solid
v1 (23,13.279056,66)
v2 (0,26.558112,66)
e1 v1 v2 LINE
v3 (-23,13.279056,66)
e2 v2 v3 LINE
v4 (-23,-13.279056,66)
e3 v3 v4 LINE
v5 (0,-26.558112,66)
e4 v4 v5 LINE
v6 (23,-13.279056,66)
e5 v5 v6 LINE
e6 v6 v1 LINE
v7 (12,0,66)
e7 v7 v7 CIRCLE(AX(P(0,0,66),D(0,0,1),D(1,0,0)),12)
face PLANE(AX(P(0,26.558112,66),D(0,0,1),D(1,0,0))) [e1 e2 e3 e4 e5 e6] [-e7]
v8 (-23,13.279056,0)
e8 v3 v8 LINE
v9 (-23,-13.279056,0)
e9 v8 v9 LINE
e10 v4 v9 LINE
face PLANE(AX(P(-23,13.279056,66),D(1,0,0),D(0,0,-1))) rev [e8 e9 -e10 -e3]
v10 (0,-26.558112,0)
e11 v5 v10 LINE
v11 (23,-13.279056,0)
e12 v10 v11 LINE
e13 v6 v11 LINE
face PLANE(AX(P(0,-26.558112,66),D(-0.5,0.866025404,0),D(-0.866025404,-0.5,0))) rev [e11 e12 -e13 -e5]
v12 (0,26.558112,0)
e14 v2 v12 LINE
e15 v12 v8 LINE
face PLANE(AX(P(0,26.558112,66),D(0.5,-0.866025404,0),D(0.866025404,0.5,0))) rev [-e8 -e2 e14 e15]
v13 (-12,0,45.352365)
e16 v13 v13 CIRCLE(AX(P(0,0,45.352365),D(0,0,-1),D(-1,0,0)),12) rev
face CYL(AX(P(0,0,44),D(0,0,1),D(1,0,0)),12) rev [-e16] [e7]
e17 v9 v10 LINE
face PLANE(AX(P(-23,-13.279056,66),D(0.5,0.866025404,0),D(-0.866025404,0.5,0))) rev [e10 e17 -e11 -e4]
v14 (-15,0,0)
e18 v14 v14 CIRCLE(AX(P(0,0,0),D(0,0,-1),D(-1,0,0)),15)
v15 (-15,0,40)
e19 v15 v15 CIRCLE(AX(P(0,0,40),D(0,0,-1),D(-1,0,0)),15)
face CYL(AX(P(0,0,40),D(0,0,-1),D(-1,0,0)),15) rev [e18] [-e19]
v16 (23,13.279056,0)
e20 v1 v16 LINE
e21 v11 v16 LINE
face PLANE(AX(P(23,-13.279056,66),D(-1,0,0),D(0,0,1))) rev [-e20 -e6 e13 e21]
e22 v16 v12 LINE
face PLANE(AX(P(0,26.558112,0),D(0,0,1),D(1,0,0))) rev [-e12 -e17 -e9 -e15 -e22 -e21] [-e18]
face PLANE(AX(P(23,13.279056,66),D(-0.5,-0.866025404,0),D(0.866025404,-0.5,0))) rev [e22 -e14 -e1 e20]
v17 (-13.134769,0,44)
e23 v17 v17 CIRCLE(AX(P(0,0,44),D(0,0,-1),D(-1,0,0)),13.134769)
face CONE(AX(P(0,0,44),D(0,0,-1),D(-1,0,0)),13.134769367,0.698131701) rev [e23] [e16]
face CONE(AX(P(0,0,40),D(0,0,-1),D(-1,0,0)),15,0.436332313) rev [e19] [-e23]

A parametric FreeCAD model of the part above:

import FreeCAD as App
import Part
import Sketcher
Q = App.Units.Quantity


def faces_at(feature, points):
    """Names of the faces that lie closest to the given points."""
    faces = feature.Shape.Faces
    near = lambda p: min(range(len(faces)), key=lambda i: faces[i].distToShape(Part.Vertex(*p))[0])
    return sorted({f"Face{near(p) + 1}" for p in points})

doc = App.newDocument("Part")
body = doc.addObject("PartDesign::Body", "Body")

# Sketch on XY plane
sketch1 = doc.addObject("Sketcher::SketchObject", "Sketch")
body.addObject(sketch1)
sketch1.AttachmentSupport = (doc.XY_Plane, [""])
sketch1.MapMode = "FlatFace"
sketch1.addGeometry(Part.LineSegment(App.Vector(0, 27, 0), App.Vector(-23, 13, 0)), False)
sketch1.addGeometry(Part.LineSegment(App.Vector(-23, 13, 0), App.Vector(-23, -13, 0)), False)
sketch1.addGeometry(Part.LineSegment(App.Vector(-23, -13, 0), App.Vector(0, -27, 0)), False)
sketch1.addGeometry(Part.LineSegment(App.Vector(0, -27, 0), App.Vector(23, -13, 0)), False)
sketch1.addGeometry(Part.LineSegment(App.Vector(23, -13, 0), App.Vector(23, 13, 0)), False)
sketch1.addGeometry(Part.LineSegment(App.Vector(23, 13, 0), App.Vector(0, 27, 0)), False)
sketch1.addConstraint(Sketcher.Constraint("Coincident", 0, 2, 1, 1))
sketch1.addConstraint(Sketcher.Constraint("Coincident", 1, 2, 2, 1))
sketch1.addConstraint(Sketcher.Constraint("Coincident", 2, 2, 3, 1))
sketch1.addConstraint(Sketcher.Constraint("Coincident", 3, 2, 4, 1))
sketch1.addConstraint(Sketcher.Constraint("Coincident", 4, 2, 5, 1))
sketch1.addConstraint(Sketcher.Constraint("Coincident", 5, 2, 0, 1))
sketch1.addConstraint(Sketcher.Constraint("Vertical", 1))
sketch1.addConstraint(Sketcher.Constraint("Vertical", 4))
sketch1.addConstraint(Sketcher.Constraint("Symmetric", 0, 2, 3, 2, -1, 1))
sketch1.addConstraint(Sketcher.Constraint("Symmetric", 2, 2, 5, 2, -1, 1))
sketch1.addConstraint(Sketcher.Constraint("PointOnObject", 2, 2, -2))
sketch1.addConstraint(Sketcher.Constraint("Parallel", 2, 5))
sketch1.addConstraint(Sketcher.Constraint("Horizontal", 1, 2, 3, 2))
sketch1.addConstraint(Sketcher.Constraint("Angle", 0, Q("-150 deg")))
sketch1.addConstraint(Sketcher.Constraint("DistanceX", 0, 2, -1, 1, 23.0))
sketch1.addConstraint(Sketcher.Constraint("DistanceY", 1, 2, 1, 1, 26.558112))
pad1 = doc.addObject("PartDesign::Pad", "Pad")
body.addObject(pad1)
pad1.Profile = sketch1
pad1.Length = 66

# Sketch on XY plane
sketch2 = doc.addObject("Sketcher::SketchObject", "Sketch001")
body.addObject(sketch2)
sketch2.AttachmentSupport = (doc.XY_Plane, [""])
sketch2.MapMode = "FlatFace"
sketch2.addGeometry(Part.Circle(App.Vector(0, 0, 0), App.Vector(0, 0, 1), 15), False)
sketch2.addConstraint(Sketcher.Constraint("Coincident", 0, 3, -1, 1))
sketch2.addConstraint(Sketcher.Constraint("Diameter", 0, 30.0))
pocket1 = doc.addObject("PartDesign::Pocket", "Pocket")
body.addObject(pocket1)
pocket1.Profile = sketch2
pocket1.Length = 40
pocket1.Reversed = True
body2 = doc.addObject("PartDesign::Body", "Body001")

# Sketch on XY plane
sketch3 = doc.addObject("Sketcher::SketchObject", "Sketch002")
body2.addObject(sketch3)
sketch3.AttachmentSupport = (doc.getObject("XY_Plane001"), [""])
sketch3.MapMode = "FlatFace"
sketch3.AttachmentOffset = App.Placement(App.Vector(0, 0, 40), App.Rotation())
sketch3.addGeometry(Part.Circle(App.Vector(0, 0, 0), App.Vector(0, 0, 1), 15), False)
sketch3.addConstraint(Sketcher.Constraint("Coincident", 0, 3, -1, 1))
sketch3.addConstraint(Sketcher.Constraint("Diameter", 0, 30.0))
pad2 = doc.addObject("PartDesign::Pad", "Pad001")
body2.addObject(pad2)
pad2.Profile = sketch3
pad2.Length = 4
doc.recompute()

datumplane = doc.addObject("PartDesign::Plane", "DatumPlane")
body2.addObject(datumplane)
datumplane.AttachmentSupport = (doc.getObject("XY_Plane001"), [""])
datumplane.MapMode = "FlatFace"
datumplane.AttachmentOffset = App.Placement(App.Vector(0, 0, 40), App.Rotation())
draft = doc.addObject("PartDesign::Draft", "Draft")
body2.addObject(draft)
draft.Base = (pad2, faces_at(pad2, [(15, 0, 42)]))
draft.NeutralPlane = (datumplane, [""])
draft.Angle = 25
draft.Reversed = False
doc.recompute()

boolean = doc.addObject("PartDesign::Boolean", "Boolean")
body.addObject(boolean)
boolean.Type = "Cut"
boolean.addObjects([body2])
body3 = doc.addObject("PartDesign::Body", "Body002")

# Sketch on XY plane
sketch4 = doc.addObject("Sketcher::SketchObject", "Sketch003")
body3.addObject(sketch4)
sketch4.AttachmentSupport = (doc.getObject("XY_Plane002"), [""])
sketch4.MapMode = "FlatFace"
sketch4.AttachmentOffset = App.Placement(App.Vector(0, 0, 44), App.Rotation())
sketch4.addGeometry(Part.Circle(App.Vector(0, 0, 0), App.Vector(0, 0, 1), 13), False)
sketch4.addConstraint(Sketcher.Constraint("Coincident", 0, 3, -1, 1))
sketch4.addConstraint(Sketcher.Constraint("Diameter", 0, 26.269539))
pad3 = doc.addObject("PartDesign::Pad", "Pad002")
body3.addObject(pad3)
pad3.Profile = sketch4
pad3.Length = 2
doc.recompute()

datumplane2 = doc.addObject("PartDesign::Plane", "DatumPlane001")
body3.addObject(datumplane2)
datumplane2.AttachmentSupport = (doc.getObject("XY_Plane002"), [""])
datumplane2.MapMode = "FlatFace"
datumplane2.AttachmentOffset = App.Placement(App.Vector(0, 0, 44), App.Rotation())
draft2 = doc.addObject("PartDesign::Draft", "Draft001")
body3.addObject(draft2)
draft2.Base = (pad3, faces_at(pad3, [(13.135, 0, 45)]))
draft2.NeutralPlane = (datumplane2, [""])
draft2.Angle = 40
draft2.Reversed = False
doc.recompute()

boolean2 = doc.addObject("PartDesign::Boolean", "Boolean001")
body.addObject(boolean2)
boolean2.Type = "Cut"
boolean2.addObjects([body3])

# Sketch on XY plane
sketch5 = doc.addObject("Sketcher::SketchObject", "Sketch004")
body.addObject(sketch5)
sketch5.AttachmentSupport = (doc.XY_Plane, [""])
sketch5.MapMode = "FlatFace"
sketch5.AttachmentOffset = App.Placement(App.Vector(0, 0, 66), App.Rotation())
sketch5.addGeometry(Part.Circle(App.Vector(0, 0, 0), App.Vector(0, 0, 1), 12), False)
sketch5.addConstraint(Sketcher.Constraint("Coincident", 0, 3, -1, 1))
sketch5.addConstraint(Sketcher.Constraint("Diameter", 0, 24.0))
pocket2 = doc.addObject("PartDesign::Pocket", "Pocket001")
body.addObject(pocket2)
pocket2.Profile = sketch5
pocket2.Length = 22

doc.recompute()
